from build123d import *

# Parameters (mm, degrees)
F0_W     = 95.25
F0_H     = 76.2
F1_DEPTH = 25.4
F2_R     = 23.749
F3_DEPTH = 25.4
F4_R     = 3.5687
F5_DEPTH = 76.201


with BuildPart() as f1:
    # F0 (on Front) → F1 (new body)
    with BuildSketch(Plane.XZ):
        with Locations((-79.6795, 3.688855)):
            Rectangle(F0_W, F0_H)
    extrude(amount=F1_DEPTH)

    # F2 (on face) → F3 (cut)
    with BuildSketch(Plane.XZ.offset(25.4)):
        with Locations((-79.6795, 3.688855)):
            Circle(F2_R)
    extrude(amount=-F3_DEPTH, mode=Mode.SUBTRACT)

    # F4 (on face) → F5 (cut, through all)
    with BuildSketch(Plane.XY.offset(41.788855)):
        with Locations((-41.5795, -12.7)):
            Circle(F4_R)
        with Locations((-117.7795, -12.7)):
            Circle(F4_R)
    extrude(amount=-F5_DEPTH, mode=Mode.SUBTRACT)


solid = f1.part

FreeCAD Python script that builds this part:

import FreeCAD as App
import Part
import Sketcher
from FreeCAD import Vector
Q = App.Units.Quantity


def add_polygon(sketch, points):
    """Adds a closed chain of lines whose ends are joined by coincident constraints."""
    first, n = sketch.GeometryCount, len(points)
    for a, b in zip(points, points[1:] + points[:1]):
        sketch.addGeometry(Part.LineSegment(App.Vector(*a, 0), App.Vector(*b, 0)), False)
    for i in range(n):
        sketch.addConstraint(Sketcher.Constraint("Coincident", first + i, 2, first + (i + 1) % n, 1))

doc = App.newDocument("Part")
body = doc.addObject("PartDesign::Body", "Body")

sketch1 = body.newObject("Sketcher::SketchObject", "Sketch")
sketch1.AttachmentSupport = (doc.getObject("XZ_Plane"), [""])
sketch1.MapMode = "FlatFace"
add_polygon(sketch1, [(-127, 42), (-127, -34), (-32, -34), (-32, 42)])
sketch1.addConstraint(Sketcher.Constraint("Vertical", 0))
sketch1.addConstraint(Sketcher.Constraint("Horizontal", 1))
sketch1.addConstraint(Sketcher.Constraint("Vertical", 2))
sketch1.addConstraint(Sketcher.Constraint("Horizontal", 3))
sketch1.addConstraint(Sketcher.Constraint("DistanceY", 0, 2, 0, 1, Q("3 in")))
sketch1.addConstraint(Sketcher.Constraint("DistanceX", 1, 1, 1, 2, Q("3.75 in")))
sketch1.addConstraint(Sketcher.Constraint("DistanceX", 0, 2, -1, 1, Q("127.3045 mm")))
sketch1.addConstraint(Sketcher.Constraint("DistanceY", 0, 2, -1, 1, Q("34.411145 mm")))
pad1 = body.newObject("PartDesign::Pad", "Pad")
pad1.Profile = sketch1
pad1.Length = Q("1 in")

sketch2 = body.newObject("Sketcher::SketchObject", "Sketch001")
sketch2.AttachmentSupport = (doc.getObject("XZ_Plane"), [""])
sketch2.MapMode = "FlatFace"
sketch2.AttachmentOffset = App.Placement(Vector(0, 0, 1 * 25.4), App.Rotation())
sketch2.addGeometry(Part.Circle(Vector(-80, 4, 0), Vector(0, 0, 1), 24), False)
sketch2.addConstraint(Sketcher.Constraint("Diameter", 0, Q("1.87 in")))
sketch2.addConstraint(Sketcher.Constraint("DistanceX", 0, 3, -1, 1, Q("79.6795 mm")))
sketch2.addConstraint(Sketcher.Constraint("DistanceY", -1, 1, 0, 3, Q("3.688855 mm")))
pocket1 = body.newObject("PartDesign::Pocket", "Pocket")
pocket1.Profile = sketch2
pocket1.Length = Q("1 in")

sketch3 = body.newObject("Sketcher::SketchObject", "Sketch002")
sketch3.AttachmentSupport = (doc.getObject("XY_Plane"), [""])
sketch3.MapMode = "FlatFace"
sketch3.AttachmentOffset = App.Placement(Vector(0, 0, 41.788855), App.Rotation())
sketch3.addGeometry(Part.Circle(Vector(-41.6, -12.7, 0), Vector(0, 0, 1), 3.6), False)
sketch3.addGeometry(Part.Circle(Vector(-117.8, -12.7, 0), Vector(0, 0, 1), 3.6), False)
sketch3.addConstraint(Sketcher.Constraint("Equal", 0, 1))
sketch3.addConstraint(Sketcher.Constraint("Horizontal", 0, 3, 1, 3))
sketch3.addConstraint(Sketcher.Constraint("Diameter", 0, Q("0.281 in")))
sketch3.addConstraint(Sketcher.Constraint("DistanceX", 1, 3, 0, 3, Q("3 in")))
sketch3.addConstraint(Sketcher.Constraint("DistanceY", 0, 3, -1, 1, Q("0.5 in")))
sketch3.addConstraint(Sketcher.Constraint("DistanceX", 0, 3, -1, 1, Q("41.5795 mm")))
pocket2 = body.newObject("PartDesign::Pocket", "Pocket001")
pocket2.Profile = sketch3
pocket2.Type = "ThroughAll"

doc.recompute()
